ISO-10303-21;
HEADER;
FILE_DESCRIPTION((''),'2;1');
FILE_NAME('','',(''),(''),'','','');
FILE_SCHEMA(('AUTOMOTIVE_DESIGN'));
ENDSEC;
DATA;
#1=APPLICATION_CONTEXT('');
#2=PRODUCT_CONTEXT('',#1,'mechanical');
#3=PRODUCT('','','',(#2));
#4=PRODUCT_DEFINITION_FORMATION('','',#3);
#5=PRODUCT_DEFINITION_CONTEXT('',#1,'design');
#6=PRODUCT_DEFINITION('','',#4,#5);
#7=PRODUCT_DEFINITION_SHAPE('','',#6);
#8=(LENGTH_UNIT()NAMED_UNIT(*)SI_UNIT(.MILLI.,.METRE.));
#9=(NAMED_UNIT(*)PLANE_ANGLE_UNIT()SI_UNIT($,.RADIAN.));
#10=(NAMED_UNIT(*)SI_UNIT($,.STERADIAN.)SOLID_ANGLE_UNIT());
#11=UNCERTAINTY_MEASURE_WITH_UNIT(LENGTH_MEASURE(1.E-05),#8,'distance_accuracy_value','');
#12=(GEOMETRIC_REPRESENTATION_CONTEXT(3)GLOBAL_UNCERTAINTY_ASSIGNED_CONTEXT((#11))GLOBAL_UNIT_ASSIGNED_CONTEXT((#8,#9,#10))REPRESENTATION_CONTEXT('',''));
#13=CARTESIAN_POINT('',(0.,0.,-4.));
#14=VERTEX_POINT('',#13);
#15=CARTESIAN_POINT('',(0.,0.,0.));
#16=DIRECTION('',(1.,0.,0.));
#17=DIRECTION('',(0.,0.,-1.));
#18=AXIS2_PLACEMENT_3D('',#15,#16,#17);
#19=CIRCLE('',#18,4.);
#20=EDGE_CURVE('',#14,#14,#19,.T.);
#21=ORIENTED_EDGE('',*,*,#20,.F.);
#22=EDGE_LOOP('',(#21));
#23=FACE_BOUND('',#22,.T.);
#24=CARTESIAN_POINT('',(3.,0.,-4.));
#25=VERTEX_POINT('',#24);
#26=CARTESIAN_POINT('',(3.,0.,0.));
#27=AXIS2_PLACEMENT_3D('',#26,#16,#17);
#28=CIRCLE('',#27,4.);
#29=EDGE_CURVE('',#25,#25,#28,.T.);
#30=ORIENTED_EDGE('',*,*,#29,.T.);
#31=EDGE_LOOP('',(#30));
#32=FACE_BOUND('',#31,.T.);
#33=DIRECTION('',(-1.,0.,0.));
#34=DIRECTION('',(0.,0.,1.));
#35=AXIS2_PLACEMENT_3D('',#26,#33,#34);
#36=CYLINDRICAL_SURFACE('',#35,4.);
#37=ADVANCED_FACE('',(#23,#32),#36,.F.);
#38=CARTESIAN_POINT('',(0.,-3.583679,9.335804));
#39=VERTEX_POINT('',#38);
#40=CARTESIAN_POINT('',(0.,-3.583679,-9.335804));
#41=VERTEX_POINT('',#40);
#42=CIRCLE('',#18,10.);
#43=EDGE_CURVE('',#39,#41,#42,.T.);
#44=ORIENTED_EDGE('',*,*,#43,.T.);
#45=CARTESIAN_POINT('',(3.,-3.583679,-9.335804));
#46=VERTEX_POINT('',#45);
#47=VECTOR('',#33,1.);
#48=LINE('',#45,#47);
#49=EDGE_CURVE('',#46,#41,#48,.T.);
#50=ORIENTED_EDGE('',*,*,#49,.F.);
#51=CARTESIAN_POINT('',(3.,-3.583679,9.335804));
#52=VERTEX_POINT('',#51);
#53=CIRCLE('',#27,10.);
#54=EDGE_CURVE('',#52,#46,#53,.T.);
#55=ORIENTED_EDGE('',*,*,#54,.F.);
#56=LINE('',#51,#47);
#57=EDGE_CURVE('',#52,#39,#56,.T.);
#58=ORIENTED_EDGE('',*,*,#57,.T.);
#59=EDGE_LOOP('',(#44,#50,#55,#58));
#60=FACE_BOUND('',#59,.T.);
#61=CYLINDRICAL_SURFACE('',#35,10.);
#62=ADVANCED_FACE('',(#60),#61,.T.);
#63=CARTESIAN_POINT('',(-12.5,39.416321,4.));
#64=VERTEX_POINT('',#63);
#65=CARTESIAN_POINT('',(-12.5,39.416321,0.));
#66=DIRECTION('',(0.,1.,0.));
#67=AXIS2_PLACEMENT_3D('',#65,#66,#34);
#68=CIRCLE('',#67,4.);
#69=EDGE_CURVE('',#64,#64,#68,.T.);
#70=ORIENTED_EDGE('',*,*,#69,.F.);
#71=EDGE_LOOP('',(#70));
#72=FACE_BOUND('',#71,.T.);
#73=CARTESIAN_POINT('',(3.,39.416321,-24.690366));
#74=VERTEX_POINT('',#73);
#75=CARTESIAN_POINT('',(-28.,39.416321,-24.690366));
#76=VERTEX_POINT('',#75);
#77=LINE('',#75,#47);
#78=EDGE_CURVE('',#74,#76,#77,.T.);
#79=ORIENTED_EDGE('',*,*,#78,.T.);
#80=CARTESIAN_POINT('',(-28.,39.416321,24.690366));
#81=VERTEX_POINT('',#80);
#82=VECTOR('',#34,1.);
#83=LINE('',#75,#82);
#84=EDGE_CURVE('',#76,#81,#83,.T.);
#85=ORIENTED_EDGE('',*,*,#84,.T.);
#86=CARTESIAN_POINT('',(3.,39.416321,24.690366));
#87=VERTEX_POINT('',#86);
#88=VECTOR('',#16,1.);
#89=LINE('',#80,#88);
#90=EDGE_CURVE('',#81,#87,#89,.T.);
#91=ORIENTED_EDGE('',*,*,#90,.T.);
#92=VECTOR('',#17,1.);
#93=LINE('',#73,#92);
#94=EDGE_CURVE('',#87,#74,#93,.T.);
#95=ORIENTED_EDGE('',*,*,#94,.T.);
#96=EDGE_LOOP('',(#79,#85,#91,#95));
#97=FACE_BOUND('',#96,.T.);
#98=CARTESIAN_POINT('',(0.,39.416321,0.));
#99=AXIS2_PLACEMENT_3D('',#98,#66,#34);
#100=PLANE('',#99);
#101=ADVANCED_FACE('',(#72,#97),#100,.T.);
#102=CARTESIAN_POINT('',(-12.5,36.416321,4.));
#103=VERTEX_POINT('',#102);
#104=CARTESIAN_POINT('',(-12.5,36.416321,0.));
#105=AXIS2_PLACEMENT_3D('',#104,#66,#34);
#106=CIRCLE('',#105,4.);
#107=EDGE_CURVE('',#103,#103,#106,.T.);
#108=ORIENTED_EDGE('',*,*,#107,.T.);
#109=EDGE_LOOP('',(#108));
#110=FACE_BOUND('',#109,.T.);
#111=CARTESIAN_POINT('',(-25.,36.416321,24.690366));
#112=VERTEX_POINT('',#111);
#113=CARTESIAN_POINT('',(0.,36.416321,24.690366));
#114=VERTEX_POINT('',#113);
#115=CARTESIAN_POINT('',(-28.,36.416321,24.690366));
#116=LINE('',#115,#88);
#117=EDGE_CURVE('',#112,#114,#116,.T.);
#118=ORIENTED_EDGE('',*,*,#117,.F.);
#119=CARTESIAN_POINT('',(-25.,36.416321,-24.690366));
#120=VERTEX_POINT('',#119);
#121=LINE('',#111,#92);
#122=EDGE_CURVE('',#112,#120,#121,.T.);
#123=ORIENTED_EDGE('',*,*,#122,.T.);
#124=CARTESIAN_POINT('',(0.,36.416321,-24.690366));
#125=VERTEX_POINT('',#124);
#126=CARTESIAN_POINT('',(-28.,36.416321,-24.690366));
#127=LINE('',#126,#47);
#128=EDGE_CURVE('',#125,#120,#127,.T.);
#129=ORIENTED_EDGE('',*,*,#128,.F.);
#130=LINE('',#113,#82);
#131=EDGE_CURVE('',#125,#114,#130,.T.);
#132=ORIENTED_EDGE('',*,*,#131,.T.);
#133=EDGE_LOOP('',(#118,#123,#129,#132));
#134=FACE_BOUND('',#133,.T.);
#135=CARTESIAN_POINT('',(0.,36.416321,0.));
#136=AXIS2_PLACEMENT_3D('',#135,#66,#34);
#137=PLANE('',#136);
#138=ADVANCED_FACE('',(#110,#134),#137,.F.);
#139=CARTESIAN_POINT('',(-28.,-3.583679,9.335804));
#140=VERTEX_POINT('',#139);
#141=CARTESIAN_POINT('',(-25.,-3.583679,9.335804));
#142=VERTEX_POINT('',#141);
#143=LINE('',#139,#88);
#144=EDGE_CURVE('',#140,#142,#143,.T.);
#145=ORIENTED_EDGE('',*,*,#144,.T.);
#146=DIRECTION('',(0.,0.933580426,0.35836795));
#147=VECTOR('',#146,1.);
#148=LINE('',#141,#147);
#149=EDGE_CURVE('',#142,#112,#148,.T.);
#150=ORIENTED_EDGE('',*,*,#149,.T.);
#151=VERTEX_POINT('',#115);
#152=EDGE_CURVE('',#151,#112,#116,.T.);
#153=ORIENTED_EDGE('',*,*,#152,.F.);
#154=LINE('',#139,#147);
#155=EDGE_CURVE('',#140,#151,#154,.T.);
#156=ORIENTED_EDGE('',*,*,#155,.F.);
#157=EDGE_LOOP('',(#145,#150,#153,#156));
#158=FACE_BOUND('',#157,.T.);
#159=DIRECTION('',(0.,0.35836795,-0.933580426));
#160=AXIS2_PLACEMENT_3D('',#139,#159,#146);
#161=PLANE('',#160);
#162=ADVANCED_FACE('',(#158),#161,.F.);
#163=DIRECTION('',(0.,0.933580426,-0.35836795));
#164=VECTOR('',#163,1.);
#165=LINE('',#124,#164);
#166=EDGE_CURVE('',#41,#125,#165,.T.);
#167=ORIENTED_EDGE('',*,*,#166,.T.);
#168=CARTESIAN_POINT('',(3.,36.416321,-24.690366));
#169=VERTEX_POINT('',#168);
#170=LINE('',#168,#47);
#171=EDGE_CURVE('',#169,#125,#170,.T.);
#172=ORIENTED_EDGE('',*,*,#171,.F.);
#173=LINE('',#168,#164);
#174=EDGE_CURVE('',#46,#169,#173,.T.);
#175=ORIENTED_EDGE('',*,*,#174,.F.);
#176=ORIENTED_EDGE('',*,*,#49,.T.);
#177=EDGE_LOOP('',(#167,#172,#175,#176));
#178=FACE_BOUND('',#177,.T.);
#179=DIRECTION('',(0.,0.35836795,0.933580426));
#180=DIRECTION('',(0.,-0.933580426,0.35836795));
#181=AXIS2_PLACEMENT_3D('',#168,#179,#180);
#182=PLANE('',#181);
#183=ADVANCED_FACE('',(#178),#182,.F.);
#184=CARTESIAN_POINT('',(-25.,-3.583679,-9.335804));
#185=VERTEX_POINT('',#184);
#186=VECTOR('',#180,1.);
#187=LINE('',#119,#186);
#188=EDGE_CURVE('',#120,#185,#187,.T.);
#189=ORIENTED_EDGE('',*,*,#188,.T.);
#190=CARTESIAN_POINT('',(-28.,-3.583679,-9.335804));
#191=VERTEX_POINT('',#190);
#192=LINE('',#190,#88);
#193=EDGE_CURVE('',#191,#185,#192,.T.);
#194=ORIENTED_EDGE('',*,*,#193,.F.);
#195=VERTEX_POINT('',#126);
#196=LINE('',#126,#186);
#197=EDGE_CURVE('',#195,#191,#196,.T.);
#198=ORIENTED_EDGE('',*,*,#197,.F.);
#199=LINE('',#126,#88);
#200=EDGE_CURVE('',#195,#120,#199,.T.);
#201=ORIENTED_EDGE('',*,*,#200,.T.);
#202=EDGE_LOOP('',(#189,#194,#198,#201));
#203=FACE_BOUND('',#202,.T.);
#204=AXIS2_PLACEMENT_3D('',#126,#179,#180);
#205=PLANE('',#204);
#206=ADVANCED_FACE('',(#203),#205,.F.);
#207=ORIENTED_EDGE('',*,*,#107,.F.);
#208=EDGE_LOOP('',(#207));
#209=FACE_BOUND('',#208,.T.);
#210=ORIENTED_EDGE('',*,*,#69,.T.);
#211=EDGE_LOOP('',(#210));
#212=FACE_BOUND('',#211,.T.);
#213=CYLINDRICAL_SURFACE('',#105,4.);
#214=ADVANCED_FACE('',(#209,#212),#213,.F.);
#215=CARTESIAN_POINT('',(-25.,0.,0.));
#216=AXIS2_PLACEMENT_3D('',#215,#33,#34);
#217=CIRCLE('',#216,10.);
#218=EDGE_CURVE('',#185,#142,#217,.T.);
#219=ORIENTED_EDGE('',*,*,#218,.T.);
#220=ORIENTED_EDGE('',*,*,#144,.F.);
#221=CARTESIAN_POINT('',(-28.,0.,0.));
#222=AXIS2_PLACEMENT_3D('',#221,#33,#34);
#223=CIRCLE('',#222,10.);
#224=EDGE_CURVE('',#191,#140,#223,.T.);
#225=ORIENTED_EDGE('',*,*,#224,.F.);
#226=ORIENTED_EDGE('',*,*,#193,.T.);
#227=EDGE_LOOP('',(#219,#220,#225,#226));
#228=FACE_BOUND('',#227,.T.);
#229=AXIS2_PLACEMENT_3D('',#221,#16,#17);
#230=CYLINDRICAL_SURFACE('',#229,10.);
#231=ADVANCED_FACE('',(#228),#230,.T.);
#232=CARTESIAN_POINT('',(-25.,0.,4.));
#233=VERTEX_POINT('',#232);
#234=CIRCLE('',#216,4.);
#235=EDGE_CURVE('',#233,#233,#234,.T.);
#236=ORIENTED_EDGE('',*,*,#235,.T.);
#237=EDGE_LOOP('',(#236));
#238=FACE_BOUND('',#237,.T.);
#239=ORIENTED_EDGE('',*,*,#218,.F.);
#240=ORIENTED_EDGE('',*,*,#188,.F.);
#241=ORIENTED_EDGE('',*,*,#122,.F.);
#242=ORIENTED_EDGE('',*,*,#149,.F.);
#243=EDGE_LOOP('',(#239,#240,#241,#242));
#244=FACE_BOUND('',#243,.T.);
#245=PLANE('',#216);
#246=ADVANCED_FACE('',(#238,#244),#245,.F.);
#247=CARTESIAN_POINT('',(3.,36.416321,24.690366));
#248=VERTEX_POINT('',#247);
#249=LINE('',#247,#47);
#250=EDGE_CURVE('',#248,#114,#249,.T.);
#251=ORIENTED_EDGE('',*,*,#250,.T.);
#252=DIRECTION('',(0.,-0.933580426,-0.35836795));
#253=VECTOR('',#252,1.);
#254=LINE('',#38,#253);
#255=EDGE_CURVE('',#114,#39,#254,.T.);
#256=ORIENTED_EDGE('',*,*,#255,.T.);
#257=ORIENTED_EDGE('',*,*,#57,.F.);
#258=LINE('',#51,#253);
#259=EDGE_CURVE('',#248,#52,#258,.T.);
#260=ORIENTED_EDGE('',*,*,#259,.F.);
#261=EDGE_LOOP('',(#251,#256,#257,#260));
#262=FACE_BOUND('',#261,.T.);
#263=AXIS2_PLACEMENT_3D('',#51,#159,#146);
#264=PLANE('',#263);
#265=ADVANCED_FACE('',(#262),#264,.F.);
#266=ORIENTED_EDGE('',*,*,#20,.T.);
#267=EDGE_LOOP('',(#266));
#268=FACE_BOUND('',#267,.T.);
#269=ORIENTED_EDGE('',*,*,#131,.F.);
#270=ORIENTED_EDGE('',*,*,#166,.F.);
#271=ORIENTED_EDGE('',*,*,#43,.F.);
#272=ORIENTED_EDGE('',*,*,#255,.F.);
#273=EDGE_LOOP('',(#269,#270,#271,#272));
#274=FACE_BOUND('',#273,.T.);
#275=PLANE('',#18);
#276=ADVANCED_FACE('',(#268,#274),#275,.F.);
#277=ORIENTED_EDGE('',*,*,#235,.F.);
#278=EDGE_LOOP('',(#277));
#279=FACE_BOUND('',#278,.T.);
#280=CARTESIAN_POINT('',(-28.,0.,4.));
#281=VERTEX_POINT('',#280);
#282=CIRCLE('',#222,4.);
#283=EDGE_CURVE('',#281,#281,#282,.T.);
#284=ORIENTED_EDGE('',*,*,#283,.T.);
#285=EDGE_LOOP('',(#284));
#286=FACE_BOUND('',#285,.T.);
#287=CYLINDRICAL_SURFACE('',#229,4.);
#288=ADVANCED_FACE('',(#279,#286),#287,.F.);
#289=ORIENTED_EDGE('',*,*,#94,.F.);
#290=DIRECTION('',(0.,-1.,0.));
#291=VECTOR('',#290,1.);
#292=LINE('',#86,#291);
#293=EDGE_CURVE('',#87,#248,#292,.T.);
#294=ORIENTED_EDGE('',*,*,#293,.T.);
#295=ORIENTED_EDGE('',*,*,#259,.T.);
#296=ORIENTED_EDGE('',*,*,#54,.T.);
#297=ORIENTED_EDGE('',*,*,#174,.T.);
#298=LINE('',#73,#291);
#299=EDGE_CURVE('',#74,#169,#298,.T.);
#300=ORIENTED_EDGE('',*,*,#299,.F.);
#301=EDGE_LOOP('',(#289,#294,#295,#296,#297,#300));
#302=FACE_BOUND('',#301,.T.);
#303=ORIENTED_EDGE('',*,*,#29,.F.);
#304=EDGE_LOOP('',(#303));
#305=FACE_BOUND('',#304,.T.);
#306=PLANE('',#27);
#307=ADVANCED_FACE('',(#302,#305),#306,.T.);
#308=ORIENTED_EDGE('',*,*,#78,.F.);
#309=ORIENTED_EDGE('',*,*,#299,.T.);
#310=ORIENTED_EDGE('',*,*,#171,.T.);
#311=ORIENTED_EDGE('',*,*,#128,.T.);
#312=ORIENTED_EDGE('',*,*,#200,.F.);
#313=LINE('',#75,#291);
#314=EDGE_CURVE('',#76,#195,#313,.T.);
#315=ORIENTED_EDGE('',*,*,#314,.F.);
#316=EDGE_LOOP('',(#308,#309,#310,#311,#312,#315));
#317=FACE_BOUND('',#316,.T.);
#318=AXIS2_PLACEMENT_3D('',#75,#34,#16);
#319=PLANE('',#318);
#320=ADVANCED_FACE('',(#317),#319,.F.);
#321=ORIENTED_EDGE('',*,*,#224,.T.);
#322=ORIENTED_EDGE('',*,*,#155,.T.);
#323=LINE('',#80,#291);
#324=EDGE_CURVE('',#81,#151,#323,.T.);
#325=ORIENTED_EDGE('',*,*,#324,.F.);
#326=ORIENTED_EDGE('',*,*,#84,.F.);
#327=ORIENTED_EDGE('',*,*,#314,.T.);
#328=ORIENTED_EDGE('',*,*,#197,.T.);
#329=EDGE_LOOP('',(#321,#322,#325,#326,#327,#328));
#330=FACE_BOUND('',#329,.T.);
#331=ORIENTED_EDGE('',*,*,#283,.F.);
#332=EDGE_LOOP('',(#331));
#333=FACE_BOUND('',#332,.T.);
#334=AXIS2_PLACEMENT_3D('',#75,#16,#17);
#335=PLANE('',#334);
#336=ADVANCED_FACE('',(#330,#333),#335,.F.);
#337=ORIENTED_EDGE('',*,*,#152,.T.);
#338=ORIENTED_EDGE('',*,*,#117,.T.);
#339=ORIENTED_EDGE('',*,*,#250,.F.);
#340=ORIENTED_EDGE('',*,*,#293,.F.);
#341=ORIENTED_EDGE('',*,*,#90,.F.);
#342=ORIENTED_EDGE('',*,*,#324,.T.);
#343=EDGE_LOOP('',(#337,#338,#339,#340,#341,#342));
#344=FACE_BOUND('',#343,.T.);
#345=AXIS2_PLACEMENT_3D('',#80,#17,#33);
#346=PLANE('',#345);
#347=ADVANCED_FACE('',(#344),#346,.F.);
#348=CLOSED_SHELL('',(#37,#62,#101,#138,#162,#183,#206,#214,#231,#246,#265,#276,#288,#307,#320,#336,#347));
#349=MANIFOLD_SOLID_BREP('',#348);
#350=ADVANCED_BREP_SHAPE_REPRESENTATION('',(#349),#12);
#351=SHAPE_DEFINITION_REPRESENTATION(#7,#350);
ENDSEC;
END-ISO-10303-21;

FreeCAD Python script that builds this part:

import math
import FreeCAD as App
import Part
import Sketcher
from FreeCAD import Vector
Q = App.Units.Quantity


def add_polygon(sketch, points):
    """Adds a closed chain of lines whose ends are joined by coincident constraints."""
    first, n = sketch.GeometryCount, len(points)
    for a, b in zip(points, points[1:] + points[:1]):
        sketch.addGeometry(Part.LineSegment(App.Vector(*a, 0), App.Vector(*b, 0)), False)
    for i in range(n):
        sketch.addConstraint(Sketcher.Constraint("Coincident", first + i, 2, first + (i + 1) % n, 1))

doc = App.newDocument("Part")
body = doc.addObject("PartDesign::Body", "Body")

# Sketch on YZ plane
sketch1 = body.newObject("Sketcher::SketchObject", "Sketch")
sketch1.AttachmentSupport = (doc.getObject("YZ_Plane"), [""])
sketch1.MapMode = "FlatFace"
sketch1.addGeometry([
    Part.LineSegment(Vector(36.416321, 24.690366, 0), Vector(-3.583679, 9.335804, 0)),  # 0
    Part.ArcOfCircle(Part.Circle(Vector(0, 0, 0), Vector(0, 0, 1), 10), math.radians(111), math.radians(249)),  # 1
    Part.LineSegment(Vector(-3.583679, -9.335804, 0), Vector(36.416321, -24.690366, 0)),  # 2
    Part.LineSegment(Vector(36.416321, -24.690366, 0), Vector(36.416321, 24.690366, 0)),  # 3
    Part.Circle(Vector(0, 0, 0), Vector(0, 0, 1), 4),  # 4
], False)
sketch1.addConstraint([
    Sketcher.Constraint("Tangent", 0, 2, 1, 1),
    Sketcher.Constraint("Tangent", 1, 2, 2, 1),
    Sketcher.Constraint("Coincident", 2, 2, 3, 1),
    Sketcher.Constraint("Coincident", 3, 2, 0, 1),
    Sketcher.Constraint("Vertical", 3),
    Sketcher.Constraint("Coincident", 1, 3, -1, 1),
    Sketcher.Constraint("Coincident", 4, 3, -1, 1),
    Sketcher.Constraint("Vertical", 0, 2, 1, 2),
    Sketcher.Constraint("Diameter", 4, 8.0),
    Sketcher.Constraint("Radius", 1, 10.0),
    Sketcher.Constraint("Angle", 0, Q("-159 deg")),
    Sketcher.Constraint("DistanceX", 1, 2, 2, 2, 40.0),
])
pad1 = body.newObject("PartDesign::Pad", "Pad")
pad1.Profile = sketch1
pad1.Length = 3
body2 = doc.addObject("PartDesign::Body", "Body001")

# Sketch on YZ plane
sketch2 = body2.newObject("Sketcher::SketchObject", "Sketch001")
sketch2.AttachmentSupport = (doc.getObject("YZ_Plane001"), [""])
sketch2.MapMode = "FlatFace"
sketch2.AttachmentOffset = App.Placement(Vector(0, 0, -25), App.Rotation())
sketch2.addGeometry([
    Part.LineSegment(Vector(-3.583679, 9.335804, 0), Vector(36.416321, 24.690366, 0)),  # 0
    Part.LineSegment(Vector(36.416321, 24.690366, 0), Vector(36.416321, -24.690366, 0)),  # 1
    Part.LineSegment(Vector(36.416321, -24.690366, 0), Vector(-3.583679, -9.335804, 0)),  # 2
    Part.ArcOfCircle(Part.Circle(Vector(0, 0, 0), Vector(0, 0, 1), 10), math.radians(111), math.radians(249)),  # 3
    Part.Circle(Vector(0, 0, 0), Vector(0, 0, 1), 4),  # 4
], False)
sketch2.addConstraint([
    Sketcher.Constraint("Coincident", 0, 2, 1, 1),
    Sketcher.Constraint("Coincident", 1, 2, 2, 1),
    Sketcher.Constraint("Tangent", 2, 2, 3, 2),
    Sketcher.Constraint("Tangent", 3, 1, 0, 1),
    Sketcher.Constraint("Vertical", 1),
    Sketcher.Constraint("Coincident", 3, 3, -1, 1),
    Sketcher.Constraint("Coincident", 4, 3, -1, 1),
    Sketcher.Constraint("Vertical", 2, 2, 3, 1),
    Sketcher.Constraint("Diameter", 4, 8.0),
    Sketcher.Constraint("Radius", 3, 10.0),
    Sketcher.Constraint("Angle", 0, Q("21 deg")),
    Sketcher.Constraint("DistanceX", 2, 2, 1, 2, 40.0),
])
pad2 = body2.newObject("PartDesign::Pad", "Pad001")
pad2.Profile = sketch2
pad2.Length = 3
pad2.Reversed = True
body.AllowCompound = True
doc.recompute()

boolean = body.newObject("PartDesign::Boolean", "Boolean")
boolean.Type = "Fuse"
boolean.addObjects([body2])

# Sketch on XZ plane
sketch3 = body.newObject("Sketcher::SketchObject", "Sketch002")
sketch3.AttachmentSupport = (doc.getObject("XZ_Plane"), [""])
sketch3.MapMode = "FlatFace"
sketch3.AttachmentOffset = App.Placement(Vector(0, 0, -36.416321), App.Rotation())
add_polygon(sketch3, [(-28, -24.690366), (-28, 24.690366), (3, 24.690366), (3, -24.690366)])  # lines 0-3
sketch3.addConstraint([
    Sketcher.Constraint("Vertical", 0),
    Sketcher.Constraint("Horizontal", 1),
    Sketcher.Constraint("Vertical", 2),
    Sketcher.Constraint("Horizontal", 3),
    Sketcher.Constraint("DistanceX", 1, 1, 1, 2, 31.0),
    Sketcher.Constraint("DistanceX", 0, 2, -1, 1, 28.0),
    Sketcher.Constraint("DistanceY", 0, 1, 0, 2, 49.380731),
    Sketcher.Constraint("DistanceY", -1, 1, 0, 2, 24.690366),
])
pad3 = body.newObject("PartDesign::Pad", "Pad002")
pad3.Profile = sketch3
pad3.Length = 3
pad3.Reversed = True

# Sketch on XZ plane
sketch4 = body.newObject("Sketcher::SketchObject", "Sketch003")
sketch4.AttachmentSupport = (doc.getObject("XZ_Plane"), [""])
sketch4.MapMode = "FlatFace"
sketch4.AttachmentOffset = App.Placement(Vector(0, 0, -39.416321), App.Rotation())
sketch4.addGeometry(Part.Circle(Vector(-12.5, 0, 0), Vector(0, 0, 1), 4), False)
sketch4.addConstraint([
    Sketcher.Constraint("PointOnObject", 0, 3, -1),
    Sketcher.Constraint("Diameter", 0, 8.0),
    Sketcher.Constraint("DistanceX", 0, 3, -1, 1, 12.5),
])
pocket1 = body.newObject("PartDesign::Pocket", "Pocket")
pocket1.Profile = sketch4
pocket1.Length = 3
pocket1.Reversed = True

doc.recompute()
